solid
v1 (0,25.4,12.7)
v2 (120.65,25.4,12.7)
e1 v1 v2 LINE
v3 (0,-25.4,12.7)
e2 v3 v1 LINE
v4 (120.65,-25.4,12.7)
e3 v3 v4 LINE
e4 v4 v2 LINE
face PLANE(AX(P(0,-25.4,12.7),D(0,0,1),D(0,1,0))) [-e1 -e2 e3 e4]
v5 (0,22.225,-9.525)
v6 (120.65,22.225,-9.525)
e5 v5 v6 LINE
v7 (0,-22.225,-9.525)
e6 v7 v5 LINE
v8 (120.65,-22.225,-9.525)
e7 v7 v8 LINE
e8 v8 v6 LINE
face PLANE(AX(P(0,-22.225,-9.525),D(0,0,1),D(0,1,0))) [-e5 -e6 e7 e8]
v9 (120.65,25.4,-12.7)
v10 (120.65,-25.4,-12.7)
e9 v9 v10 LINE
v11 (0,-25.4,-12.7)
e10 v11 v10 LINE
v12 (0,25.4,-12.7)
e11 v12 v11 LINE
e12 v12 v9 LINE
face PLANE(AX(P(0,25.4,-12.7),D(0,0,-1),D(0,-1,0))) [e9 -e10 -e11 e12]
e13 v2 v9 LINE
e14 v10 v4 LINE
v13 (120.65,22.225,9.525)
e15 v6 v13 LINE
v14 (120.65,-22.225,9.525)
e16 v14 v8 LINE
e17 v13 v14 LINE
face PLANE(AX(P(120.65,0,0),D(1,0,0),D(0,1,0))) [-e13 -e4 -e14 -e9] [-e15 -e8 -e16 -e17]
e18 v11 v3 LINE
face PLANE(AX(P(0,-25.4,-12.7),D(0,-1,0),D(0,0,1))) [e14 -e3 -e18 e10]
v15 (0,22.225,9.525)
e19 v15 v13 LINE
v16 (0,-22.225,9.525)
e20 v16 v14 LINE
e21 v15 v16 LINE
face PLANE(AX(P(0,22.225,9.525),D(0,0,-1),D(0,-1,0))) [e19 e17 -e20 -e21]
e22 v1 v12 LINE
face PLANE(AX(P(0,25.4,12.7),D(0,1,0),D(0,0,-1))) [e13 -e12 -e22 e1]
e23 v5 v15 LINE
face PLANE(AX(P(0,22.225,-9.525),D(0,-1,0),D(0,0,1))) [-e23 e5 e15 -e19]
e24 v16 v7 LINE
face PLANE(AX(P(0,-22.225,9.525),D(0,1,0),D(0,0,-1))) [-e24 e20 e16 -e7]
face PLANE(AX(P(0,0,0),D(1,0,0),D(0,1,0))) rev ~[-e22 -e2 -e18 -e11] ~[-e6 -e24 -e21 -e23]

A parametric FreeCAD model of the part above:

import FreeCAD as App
import Part
import Sketcher
from FreeCAD import Vector
Q = App.Units.Quantity


def add_polygon(sketch, points):
    """Adds a closed chain of lines whose ends are joined by coincident constraints."""
    first, n = sketch.GeometryCount, len(points)
    for a, b in zip(points, points[1:] + points[:1]):
        sketch.addGeometry(Part.LineSegment(App.Vector(*a, 0), App.Vector(*b, 0)), False)
    for i in range(n):
        sketch.addConstraint(Sketcher.Constraint("Coincident", first + i, 2, first + (i + 1) % n, 1))

doc = App.newDocument("Part")
params = doc.addObject("Spreadsheet::Sheet", "Params")
for row, (alias, value) in enumerate([
    ("sketch1_width", "2 in"),
    ("sketch1_height", "1 in"),
    ("pad1_length", "4.75 in"),
], start=1):
    params.set(f"A{row}", alias)
    params.set(f"B{row}", "=" + value)
    params.setAlias(f"B{row}", alias)

body = doc.addObject("PartDesign::Body", "Body")

# Sketch on YZ plane
sketch1 = body.newObject("Sketcher::SketchObject", "Sketch")
sketch1.AttachmentSupport = (doc.getObject("YZ_Plane"), [""])
sketch1.MapMode = "FlatFace"
add_polygon(sketch1, [(25, 13), (-25, 13), (-25, -13), (25, -13)])  # lines 0-3
add_polygon(sketch1, [(-22, 10), (22, 10), (22, -10), (-22, -10)])  # lines 4-7
sketch1.addConstraint(Sketcher.Constraint("Horizontal", 0))
sketch1.addConstraint(Sketcher.Constraint("Vertical", 1))
sketch1.addConstraint(Sketcher.Constraint("Horizontal", 2))
sketch1.addConstraint(Sketcher.Constraint("Vertical", 3))
sketch1.addConstraint(Sketcher.Constraint("Horizontal", 4))
sketch1.addConstraint(Sketcher.Constraint("Vertical", 5))
sketch1.addConstraint(Sketcher.Constraint("Horizontal", 6))
sketch1.addConstraint(Sketcher.Constraint("Vertical", 7))
sketch1.addConstraint(Sketcher.Constraint("Symmetric", 0, 2, 2, 2, -1, 1))
sketch1.addConstraint(Sketcher.Constraint("Symmetric", 4, 2, 6, 2, -1, 1))
sketch1.addConstraint(Sketcher.Constraint("DistanceX", 0, 2, 0, 1, Q("2 in")))
sketch1.addConstraint(Sketcher.Constraint("DistanceY", 1, 2, 1, 1, Q("1 in")))
sketch1.addConstraint(Sketcher.Constraint("DistanceX", 4, 2, 3, 2, Q("0.125 in")))
sketch1.addConstraint(Sketcher.Constraint("DistanceY", 4, 2, 3, 2, Q("0.125 in")))
sketch1.setExpression("Constraints[18]", "Params.sketch1_width")
sketch1.setExpression("Constraints[19]", "Params.sketch1_height")
pad1 = body.newObject("PartDesign::Pad", "Pad")
pad1.Profile = sketch1
pad1.setExpression("Length", "Params.pad1_length")

doc.recompute()
